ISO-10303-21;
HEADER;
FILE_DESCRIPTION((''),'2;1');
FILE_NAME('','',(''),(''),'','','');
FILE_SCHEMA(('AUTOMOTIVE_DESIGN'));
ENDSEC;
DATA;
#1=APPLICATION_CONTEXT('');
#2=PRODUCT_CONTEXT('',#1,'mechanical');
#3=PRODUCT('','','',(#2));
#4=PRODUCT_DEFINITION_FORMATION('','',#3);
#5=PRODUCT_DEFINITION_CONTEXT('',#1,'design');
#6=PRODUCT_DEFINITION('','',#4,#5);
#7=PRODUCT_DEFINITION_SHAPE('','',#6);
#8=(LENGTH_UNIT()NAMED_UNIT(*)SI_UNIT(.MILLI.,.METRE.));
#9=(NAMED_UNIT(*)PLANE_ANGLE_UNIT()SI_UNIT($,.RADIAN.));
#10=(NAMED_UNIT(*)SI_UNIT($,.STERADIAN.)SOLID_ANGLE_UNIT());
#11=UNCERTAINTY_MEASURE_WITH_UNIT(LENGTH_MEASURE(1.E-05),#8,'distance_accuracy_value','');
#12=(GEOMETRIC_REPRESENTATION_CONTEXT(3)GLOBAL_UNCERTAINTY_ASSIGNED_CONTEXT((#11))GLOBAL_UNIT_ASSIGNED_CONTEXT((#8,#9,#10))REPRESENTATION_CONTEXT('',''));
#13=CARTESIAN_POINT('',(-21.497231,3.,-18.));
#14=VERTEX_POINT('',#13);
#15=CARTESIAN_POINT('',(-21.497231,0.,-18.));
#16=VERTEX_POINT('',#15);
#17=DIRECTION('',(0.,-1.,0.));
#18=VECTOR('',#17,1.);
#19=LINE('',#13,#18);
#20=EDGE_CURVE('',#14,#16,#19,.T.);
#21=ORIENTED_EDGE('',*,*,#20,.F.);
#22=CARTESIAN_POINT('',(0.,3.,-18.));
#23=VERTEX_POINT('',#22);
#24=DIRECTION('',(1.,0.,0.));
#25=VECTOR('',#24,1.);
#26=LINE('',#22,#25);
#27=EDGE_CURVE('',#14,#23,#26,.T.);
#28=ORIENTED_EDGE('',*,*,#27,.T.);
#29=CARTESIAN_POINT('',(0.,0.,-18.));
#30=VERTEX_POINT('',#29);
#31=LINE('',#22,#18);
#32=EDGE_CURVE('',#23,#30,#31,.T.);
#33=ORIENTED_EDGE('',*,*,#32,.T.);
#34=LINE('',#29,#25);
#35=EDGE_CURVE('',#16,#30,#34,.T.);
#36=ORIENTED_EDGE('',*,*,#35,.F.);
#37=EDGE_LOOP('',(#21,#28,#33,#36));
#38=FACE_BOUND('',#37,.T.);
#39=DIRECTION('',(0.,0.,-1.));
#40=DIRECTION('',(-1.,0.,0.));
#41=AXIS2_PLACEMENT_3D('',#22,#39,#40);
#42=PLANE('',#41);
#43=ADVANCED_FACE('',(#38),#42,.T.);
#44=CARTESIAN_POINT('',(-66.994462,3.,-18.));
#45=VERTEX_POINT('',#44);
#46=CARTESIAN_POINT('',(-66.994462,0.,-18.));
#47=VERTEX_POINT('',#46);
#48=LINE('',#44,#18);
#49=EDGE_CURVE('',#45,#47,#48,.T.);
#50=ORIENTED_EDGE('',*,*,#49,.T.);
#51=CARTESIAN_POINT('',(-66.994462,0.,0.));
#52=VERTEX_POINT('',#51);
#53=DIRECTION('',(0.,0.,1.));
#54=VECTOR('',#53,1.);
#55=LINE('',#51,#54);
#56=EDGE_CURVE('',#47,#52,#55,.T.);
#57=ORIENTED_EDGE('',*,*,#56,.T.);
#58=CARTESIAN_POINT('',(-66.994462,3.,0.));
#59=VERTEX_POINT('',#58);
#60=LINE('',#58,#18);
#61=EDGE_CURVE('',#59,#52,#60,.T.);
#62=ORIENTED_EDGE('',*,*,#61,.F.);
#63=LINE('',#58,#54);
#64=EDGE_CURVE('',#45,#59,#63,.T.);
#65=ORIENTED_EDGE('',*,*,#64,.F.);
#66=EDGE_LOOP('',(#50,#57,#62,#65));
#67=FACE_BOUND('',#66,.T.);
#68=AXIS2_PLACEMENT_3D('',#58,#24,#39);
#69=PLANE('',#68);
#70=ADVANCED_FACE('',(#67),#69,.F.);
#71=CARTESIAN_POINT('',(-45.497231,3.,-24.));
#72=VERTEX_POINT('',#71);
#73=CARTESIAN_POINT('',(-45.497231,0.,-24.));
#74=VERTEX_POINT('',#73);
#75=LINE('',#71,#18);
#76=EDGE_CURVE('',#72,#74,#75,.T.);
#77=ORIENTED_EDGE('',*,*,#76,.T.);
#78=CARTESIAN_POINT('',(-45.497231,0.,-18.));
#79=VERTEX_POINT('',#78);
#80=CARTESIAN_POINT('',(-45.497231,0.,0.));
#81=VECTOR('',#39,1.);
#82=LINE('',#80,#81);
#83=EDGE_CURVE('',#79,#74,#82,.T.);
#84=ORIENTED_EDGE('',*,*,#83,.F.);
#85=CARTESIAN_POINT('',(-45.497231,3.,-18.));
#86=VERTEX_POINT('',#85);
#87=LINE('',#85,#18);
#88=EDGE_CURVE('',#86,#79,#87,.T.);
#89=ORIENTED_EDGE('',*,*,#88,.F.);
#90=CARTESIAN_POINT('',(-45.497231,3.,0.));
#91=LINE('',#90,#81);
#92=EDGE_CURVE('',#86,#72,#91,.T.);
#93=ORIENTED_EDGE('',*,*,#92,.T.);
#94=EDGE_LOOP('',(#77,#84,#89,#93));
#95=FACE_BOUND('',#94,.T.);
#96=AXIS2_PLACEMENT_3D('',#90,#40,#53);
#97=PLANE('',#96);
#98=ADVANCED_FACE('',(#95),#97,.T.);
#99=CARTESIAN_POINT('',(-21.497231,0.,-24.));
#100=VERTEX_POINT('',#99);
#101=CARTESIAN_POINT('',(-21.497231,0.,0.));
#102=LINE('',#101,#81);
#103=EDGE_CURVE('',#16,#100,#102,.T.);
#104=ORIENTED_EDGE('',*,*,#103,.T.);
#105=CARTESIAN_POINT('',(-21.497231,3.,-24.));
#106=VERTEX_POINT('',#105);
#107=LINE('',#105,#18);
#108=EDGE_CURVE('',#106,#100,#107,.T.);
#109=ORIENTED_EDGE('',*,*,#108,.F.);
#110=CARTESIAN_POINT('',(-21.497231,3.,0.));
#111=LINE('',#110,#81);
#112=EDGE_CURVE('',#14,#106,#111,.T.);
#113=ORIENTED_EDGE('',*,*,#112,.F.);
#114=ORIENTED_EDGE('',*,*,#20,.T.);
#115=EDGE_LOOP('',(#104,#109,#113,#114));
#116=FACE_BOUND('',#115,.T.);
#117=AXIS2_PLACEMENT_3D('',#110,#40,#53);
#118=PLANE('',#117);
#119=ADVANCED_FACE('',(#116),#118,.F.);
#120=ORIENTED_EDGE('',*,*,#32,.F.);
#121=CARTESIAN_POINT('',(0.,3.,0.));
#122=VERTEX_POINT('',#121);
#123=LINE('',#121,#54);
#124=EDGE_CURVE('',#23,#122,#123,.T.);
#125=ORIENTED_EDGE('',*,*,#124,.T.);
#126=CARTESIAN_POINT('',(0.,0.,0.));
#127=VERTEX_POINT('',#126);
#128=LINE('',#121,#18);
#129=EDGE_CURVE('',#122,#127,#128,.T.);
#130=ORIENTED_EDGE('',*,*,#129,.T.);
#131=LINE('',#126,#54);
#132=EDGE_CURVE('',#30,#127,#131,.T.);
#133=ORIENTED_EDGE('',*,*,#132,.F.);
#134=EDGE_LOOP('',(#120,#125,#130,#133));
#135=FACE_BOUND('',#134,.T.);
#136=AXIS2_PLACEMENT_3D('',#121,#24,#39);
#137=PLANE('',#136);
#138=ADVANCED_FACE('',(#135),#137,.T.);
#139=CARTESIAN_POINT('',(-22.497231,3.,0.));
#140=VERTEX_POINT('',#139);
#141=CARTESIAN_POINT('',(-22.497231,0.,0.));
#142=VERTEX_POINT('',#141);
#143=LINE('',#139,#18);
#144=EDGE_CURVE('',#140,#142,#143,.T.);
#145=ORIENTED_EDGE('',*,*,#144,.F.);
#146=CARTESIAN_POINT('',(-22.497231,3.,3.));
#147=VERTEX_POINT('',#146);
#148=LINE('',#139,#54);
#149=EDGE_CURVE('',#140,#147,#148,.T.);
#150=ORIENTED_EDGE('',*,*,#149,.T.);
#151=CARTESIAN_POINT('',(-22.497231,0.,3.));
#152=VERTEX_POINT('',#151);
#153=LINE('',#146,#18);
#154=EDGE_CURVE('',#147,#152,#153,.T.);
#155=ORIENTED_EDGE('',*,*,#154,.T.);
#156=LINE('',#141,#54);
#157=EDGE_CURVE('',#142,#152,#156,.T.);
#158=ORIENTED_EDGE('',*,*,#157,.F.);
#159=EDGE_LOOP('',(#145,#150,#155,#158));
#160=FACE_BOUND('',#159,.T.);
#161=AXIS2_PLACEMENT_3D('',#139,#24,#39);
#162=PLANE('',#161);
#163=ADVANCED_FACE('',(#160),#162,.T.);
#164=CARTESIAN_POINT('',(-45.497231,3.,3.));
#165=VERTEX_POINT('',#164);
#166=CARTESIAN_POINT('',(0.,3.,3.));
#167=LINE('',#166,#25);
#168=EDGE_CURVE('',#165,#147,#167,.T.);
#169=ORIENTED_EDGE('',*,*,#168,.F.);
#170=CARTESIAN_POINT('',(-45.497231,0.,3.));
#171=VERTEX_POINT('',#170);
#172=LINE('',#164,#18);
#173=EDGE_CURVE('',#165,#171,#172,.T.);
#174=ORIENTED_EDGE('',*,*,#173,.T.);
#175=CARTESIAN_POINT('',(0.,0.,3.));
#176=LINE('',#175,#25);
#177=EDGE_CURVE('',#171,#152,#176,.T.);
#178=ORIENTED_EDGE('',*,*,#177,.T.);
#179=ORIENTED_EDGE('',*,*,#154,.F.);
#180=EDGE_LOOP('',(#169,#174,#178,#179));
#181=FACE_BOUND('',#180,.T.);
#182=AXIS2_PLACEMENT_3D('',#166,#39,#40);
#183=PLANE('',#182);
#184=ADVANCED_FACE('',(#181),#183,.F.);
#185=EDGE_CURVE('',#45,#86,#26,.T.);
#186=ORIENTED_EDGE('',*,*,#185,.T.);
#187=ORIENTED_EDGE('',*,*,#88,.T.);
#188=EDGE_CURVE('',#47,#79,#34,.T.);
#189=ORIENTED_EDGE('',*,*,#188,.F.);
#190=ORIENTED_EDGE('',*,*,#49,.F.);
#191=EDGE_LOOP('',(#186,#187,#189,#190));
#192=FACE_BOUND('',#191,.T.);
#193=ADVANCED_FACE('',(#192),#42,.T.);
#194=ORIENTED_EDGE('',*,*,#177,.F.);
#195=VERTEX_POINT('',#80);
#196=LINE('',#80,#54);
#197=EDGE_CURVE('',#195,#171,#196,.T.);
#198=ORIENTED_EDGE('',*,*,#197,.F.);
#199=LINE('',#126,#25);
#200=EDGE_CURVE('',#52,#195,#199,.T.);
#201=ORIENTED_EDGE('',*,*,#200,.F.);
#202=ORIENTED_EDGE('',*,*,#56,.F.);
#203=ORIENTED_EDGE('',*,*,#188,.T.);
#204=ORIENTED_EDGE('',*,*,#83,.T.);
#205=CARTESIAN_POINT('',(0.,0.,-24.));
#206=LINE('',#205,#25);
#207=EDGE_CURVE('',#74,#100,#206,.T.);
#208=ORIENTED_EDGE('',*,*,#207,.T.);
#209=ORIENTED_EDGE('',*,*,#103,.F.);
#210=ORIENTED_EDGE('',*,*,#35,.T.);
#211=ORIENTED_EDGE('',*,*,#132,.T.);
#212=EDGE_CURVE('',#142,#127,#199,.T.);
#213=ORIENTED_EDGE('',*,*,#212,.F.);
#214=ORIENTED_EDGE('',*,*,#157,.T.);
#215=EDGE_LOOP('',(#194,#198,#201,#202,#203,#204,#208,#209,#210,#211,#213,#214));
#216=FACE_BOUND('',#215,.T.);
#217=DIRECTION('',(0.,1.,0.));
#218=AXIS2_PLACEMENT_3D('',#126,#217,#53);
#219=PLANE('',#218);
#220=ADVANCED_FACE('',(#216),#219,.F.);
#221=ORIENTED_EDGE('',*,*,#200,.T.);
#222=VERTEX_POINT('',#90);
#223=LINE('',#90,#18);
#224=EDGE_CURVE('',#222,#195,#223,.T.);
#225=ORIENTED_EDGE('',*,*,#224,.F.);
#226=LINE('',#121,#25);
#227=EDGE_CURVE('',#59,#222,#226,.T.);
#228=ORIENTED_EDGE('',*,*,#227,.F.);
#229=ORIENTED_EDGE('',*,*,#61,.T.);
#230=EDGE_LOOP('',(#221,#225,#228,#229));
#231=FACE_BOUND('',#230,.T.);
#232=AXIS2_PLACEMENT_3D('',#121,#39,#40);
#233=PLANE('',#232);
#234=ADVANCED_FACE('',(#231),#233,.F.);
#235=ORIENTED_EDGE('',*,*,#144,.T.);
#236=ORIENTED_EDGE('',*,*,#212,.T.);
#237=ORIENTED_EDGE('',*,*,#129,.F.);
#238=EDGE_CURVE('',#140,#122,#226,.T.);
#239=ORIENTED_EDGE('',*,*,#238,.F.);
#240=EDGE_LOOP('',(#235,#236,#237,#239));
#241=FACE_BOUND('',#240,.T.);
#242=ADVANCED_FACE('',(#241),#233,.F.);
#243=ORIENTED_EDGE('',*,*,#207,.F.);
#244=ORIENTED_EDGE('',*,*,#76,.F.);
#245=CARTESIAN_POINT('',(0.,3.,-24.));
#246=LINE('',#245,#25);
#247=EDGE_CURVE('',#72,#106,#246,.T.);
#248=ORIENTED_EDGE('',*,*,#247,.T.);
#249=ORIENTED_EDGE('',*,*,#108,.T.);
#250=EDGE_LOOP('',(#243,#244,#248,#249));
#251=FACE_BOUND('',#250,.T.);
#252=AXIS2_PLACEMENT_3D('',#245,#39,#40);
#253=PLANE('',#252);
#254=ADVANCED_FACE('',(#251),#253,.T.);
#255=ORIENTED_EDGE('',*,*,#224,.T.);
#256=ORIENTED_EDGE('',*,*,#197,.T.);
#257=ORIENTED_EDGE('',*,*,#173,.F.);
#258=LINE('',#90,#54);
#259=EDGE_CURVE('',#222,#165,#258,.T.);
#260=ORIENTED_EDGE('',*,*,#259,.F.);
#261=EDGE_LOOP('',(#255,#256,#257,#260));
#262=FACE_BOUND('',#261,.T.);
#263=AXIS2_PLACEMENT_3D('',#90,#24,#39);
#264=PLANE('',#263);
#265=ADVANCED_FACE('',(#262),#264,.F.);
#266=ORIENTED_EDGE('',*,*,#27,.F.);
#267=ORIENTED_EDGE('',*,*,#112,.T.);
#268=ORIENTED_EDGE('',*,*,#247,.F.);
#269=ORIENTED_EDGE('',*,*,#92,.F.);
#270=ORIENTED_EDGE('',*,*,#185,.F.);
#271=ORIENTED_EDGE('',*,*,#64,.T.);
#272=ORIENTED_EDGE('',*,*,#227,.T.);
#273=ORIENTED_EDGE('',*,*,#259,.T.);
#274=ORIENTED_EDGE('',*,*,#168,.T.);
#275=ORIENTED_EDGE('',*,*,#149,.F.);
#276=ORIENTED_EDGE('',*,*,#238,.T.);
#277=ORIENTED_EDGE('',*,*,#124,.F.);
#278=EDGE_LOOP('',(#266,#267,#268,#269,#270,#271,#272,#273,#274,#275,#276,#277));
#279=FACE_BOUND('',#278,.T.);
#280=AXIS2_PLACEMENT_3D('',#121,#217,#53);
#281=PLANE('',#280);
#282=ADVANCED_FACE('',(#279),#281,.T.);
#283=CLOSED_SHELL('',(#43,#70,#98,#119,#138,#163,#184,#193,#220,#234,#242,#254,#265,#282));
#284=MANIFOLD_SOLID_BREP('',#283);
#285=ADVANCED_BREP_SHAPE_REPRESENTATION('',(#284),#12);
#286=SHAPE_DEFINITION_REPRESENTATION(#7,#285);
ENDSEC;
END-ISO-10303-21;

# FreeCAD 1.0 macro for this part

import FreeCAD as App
import Part
import Sketcher

V = App.Vector
Q = App.Units.Quantity


def add_polygon(sketch, points):
    """Adds a closed chain of lines whose ends are joined by coincident constraints."""
    first, n = sketch.GeometryCount, len(points)
    for a, b in zip(points, points[1:] + points[:1]):
        sketch.addGeometry(Part.LineSegment(App.Vector(*a, 0), App.Vector(*b, 0)), False)
    for i in range(n):
        sketch.addConstraint(Sketcher.Constraint("Coincident", first + i, 2, first + (i + 1) % n, 1))

doc = App.newDocument("Part")
body = doc.addObject("PartDesign::Body", "Body")

sketch1 = body.newObject("Sketcher::SketchObject", "Sketch")
sketch1.AttachmentSupport = (doc.getObject("XZ_Plane"), [""])
sketch1.MapMode = "FlatFace"
add_polygon(sketch1, [(-66.994462, -18), (-66.994462, 0), (-45.497231, 0), (-45.497231, 3), (-22.497231, 3), (-22.497231, 0), (0, 0), (0, -18), (-21.497231, -18), (-21.497231, -24), (-45.497231, -24), (-45.497231, -18)])
sketch1.addConstraint([
    Sketcher.Constraint("Vertical", 0),
    Sketcher.Constraint("Horizontal", 1),
    Sketcher.Constraint("Vertical", 2),
    Sketcher.Constraint("Horizontal", 3),
    Sketcher.Constraint("Vertical", 4),
    Sketcher.Constraint("Horizontal", 5),
    Sketcher.Constraint("Vertical", 6),
    Sketcher.Constraint("Horizontal", 7),
    Sketcher.Constraint("Vertical", 8),
    Sketcher.Constraint("Horizontal", 9),
    Sketcher.Constraint("Vertical", 10),
    Sketcher.Constraint("Horizontal", 11),
    Sketcher.Constraint("Coincident", 5, 2, -1, 1),
    Sketcher.Constraint("PointOnObject", 0, 2, -1),
    Sketcher.Constraint("Horizontal", 7, 2, 10, 2),
    Sketcher.Constraint("Vertical", 2, 2, 9, 2),
    Sketcher.Constraint("Equal", 1, 7),
    Sketcher.Constraint("DistanceX", 3, 1, 3, 2, Q("23 mm")),
    Sketcher.Constraint("DistanceX", 9, 2, 9, 1, Q("24 mm")),
    Sketcher.Constraint("DistanceY", 0, 1, 0, 2, Q("18 mm")),
    Sketcher.Constraint("DistanceY", 2, 1, 2, 2, Q("3 mm")),
    Sketcher.Constraint("DistanceY", 8, 2, 8, 1, Q("6 mm")),
    Sketcher.Constraint("DistanceX", 1, 1, 1, 2, Q("21.497231 mm")),
])
pad1 = body.newObject("PartDesign::Pad", "Pad")
pad1.Profile = sketch1
pad1.Length = 3
pad1.Reversed = True

doc.recompute()
